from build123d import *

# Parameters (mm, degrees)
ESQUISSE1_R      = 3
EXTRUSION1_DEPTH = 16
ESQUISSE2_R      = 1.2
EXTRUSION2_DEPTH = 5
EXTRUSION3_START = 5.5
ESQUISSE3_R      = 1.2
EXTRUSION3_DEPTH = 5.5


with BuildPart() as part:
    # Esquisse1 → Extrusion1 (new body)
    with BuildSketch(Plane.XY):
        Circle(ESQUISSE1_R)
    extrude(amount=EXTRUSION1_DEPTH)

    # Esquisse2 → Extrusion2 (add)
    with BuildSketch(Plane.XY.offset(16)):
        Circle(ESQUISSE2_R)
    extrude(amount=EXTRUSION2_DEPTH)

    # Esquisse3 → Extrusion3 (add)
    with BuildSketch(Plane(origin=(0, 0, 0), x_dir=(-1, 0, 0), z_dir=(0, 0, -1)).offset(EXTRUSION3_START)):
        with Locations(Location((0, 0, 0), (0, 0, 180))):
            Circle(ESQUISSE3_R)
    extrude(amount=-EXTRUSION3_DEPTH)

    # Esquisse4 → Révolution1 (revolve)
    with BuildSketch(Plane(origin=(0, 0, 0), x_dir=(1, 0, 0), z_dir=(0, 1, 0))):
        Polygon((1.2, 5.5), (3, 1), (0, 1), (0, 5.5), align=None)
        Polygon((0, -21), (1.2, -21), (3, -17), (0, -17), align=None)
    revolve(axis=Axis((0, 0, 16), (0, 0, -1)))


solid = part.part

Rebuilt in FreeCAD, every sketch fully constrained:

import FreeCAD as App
import Part
import Sketcher

V = App.Vector
Q = App.Units.Quantity

doc = App.newDocument("Part")
body = doc.addObject("PartDesign::Body", "Body")

sketch1 = body.newObject("Sketcher::SketchObject", "Sketch")
sketch1.AttachmentSupport = (doc.getObject("XY_Plane"), [""])
sketch1.MapMode = "FlatFace"
sketch1.addGeometry(Part.Circle(V(0, 0, 0), V(0, 0, 1), 3), False)
sketch1.addConstraint(Sketcher.Constraint("Coincident", 0, 3, -1, 1))
sketch1.addConstraint(Sketcher.Constraint("Diameter", 0, Q("6 mm")))
pad1 = body.newObject("PartDesign::Pad", "Pad")
pad1.Profile = sketch1
pad1.Length = 16

sketch2 = body.newObject("Sketcher::SketchObject", "Sketch001")
sketch2.AttachmentSupport = (doc.getObject("XY_Plane"), [""])
sketch2.MapMode = "FlatFace"
sketch2.AttachmentOffset = App.Placement(V(0, 0, 16), App.Rotation())
sketch2.addGeometry(Part.Circle(V(0, 0, 0), V(0, 0, 1), 1.2), False)
sketch2.addConstraint(Sketcher.Constraint("Coincident", 0, 3, -1, 1))
sketch2.addConstraint(Sketcher.Constraint("Diameter", 0, Q("2.4 mm")))
pad2 = body.newObject("PartDesign::Pad", "Pad001")
pad2.Profile = sketch2
pad2.Length = 5

sketch3 = body.newObject("Sketcher::SketchObject", "Sketch002")
sketch3.AttachmentSupport = (doc.getObject("XY_Plane"), [""])
sketch3.MapMode = "FlatFace"
sketch3.AttachmentOffset = App.Placement(V(0, 0, -5.5), App.Rotation())
sketch3.addGeometry(Part.Circle(V(0, 0, 0), V(0, 0, 1), 1.2), False)
sketch3.addConstraint(Sketcher.Constraint("Coincident", 0, 3, -1, 1))
sketch3.addConstraint(Sketcher.Constraint("Diameter", 0, Q("2.4 mm")))
pad3 = body.newObject("PartDesign::Pad", "Pad002")
pad3.Profile = sketch3
pad3.Length = 5.5

sketch4 = body.newObject("Sketcher::SketchObject", "Sketch003")
sketch4.AttachmentSupport = (doc.getObject("XZ_Plane"), [""])
sketch4.MapMode = "FlatFace"
sketch4.addGeometry(Part.LineSegment(V(3, -1, 0), V(1.2, -5.5, 0)), False)
sketch4.addGeometry(Part.LineSegment(V(1.2, -5.5, 0), V(0, -5.5, 0)), False)
sketch4.addGeometry(Part.LineSegment(V(0, -5.5, 0), V(0, -1, 0)), False)
sketch4.addGeometry(Part.LineSegment(V(0, -1, 0), V(3, -1, 0)), False)
sketch4.addGeometry(Part.LineSegment(V(0, 21, 0), V(1.2, 21, 0)), False)
sketch4.addGeometry(Part.LineSegment(V(1.2, 21, 0), V(3, 17, 0)), False)
sketch4.addGeometry(Part.LineSegment(V(3, 17, 0), V(0, 17, 0)), False)
sketch4.addGeometry(Part.LineSegment(V(0, 17, 0), V(0, 21, 0)), False)
sketch4.addConstraint(Sketcher.Constraint("Coincident", 0, 2, 1, 1))
sketch4.addConstraint(Sketcher.Constraint("Coincident", 1, 2, 2, 1))
sketch4.addConstraint(Sketcher.Constraint("Coincident", 2, 2, 3, 1))
sketch4.addConstraint(Sketcher.Constraint("Coincident", 3, 2, 0, 1))
sketch4.addConstraint(Sketcher.Constraint("Coincident", 4, 2, 5, 1))
sketch4.addConstraint(Sketcher.Constraint("Coincident", 5, 2, 6, 1))
sketch4.addConstraint(Sketcher.Constraint("Coincident", 6, 2, 7, 1))
sketch4.addConstraint(Sketcher.Constraint("Coincident", 7, 2, 4, 1))
sketch4.addConstraint(Sketcher.Constraint("Horizontal", 1))
sketch4.addConstraint(Sketcher.Constraint("Vertical", 2))
sketch4.addConstraint(Sketcher.Constraint("Horizontal", 3))
sketch4.addConstraint(Sketcher.Constraint("Horizontal", 4))
sketch4.addConstraint(Sketcher.Constraint("Horizontal", 6))
sketch4.addConstraint(Sketcher.Constraint("Vertical", 7))
sketch4.addConstraint(Sketcher.Constraint("PointOnObject", 1, 2, -2))
sketch4.addConstraint(Sketcher.Constraint("PointOnObject", 6, 2, -2))
sketch4.addConstraint(Sketcher.Constraint("Vertical", 0, 2, 4, 2))
sketch4.addConstraint(Sketcher.Constraint("Vertical", 3, 2, 5, 2))
sketch4.addConstraint(Sketcher.Constraint("DistanceX", 3, 1, 3, 2, Q("3 mm")))
sketch4.addConstraint(Sketcher.Constraint("DistanceY", 7, 1, 7, 2, Q("4 mm")))
sketch4.addConstraint(Sketcher.Constraint("DistanceX", 1, 2, 1, 1, Q("1.2 mm")))
sketch4.addConstraint(Sketcher.Constraint("DistanceY", 2, 1, 2, 2, Q("4.5 mm")))
sketch4.addConstraint(Sketcher.Constraint("DistanceY", 2, 2, -1, 1, Q("1 mm")))
sketch4.addConstraint(Sketcher.Constraint("DistanceY", -1, 1, 4, 2, Q("21 mm")))
revolution = body.newObject("PartDesign::Revolution", "Revolution")
revolution.Profile = sketch4
revolution.ReferenceAxis = (sketch4, ["V_Axis"])
revolution.Angle = 360

doc.recompute()
